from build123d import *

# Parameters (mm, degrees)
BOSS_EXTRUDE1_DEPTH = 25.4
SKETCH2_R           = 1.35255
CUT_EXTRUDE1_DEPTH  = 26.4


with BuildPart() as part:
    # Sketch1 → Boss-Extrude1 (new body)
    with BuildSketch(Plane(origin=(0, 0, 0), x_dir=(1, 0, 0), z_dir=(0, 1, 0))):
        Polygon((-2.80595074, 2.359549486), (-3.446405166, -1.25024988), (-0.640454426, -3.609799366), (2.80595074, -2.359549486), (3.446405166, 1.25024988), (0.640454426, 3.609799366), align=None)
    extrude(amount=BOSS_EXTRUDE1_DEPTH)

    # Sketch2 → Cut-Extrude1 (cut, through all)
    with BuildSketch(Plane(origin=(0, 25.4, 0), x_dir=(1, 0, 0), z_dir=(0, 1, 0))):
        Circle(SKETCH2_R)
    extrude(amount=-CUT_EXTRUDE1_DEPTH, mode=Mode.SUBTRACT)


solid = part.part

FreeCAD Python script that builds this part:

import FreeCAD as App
import Part
import Sketcher


def add_polygon(sketch, points):
    """Adds a closed chain of lines whose ends are joined by coincident constraints."""
    first, n = sketch.GeometryCount, len(points)
    for a, b in zip(points, points[1:] + points[:1]):
        sketch.addGeometry(Part.LineSegment(App.Vector(*a, 0), App.Vector(*b, 0)), False)
    for i in range(n):
        sketch.addConstraint(Sketcher.Constraint("Coincident", first + i, 2, first + (i + 1) % n, 1))

doc = App.newDocument("Part")
body = doc.addObject("PartDesign::Body", "Body")

sketch1 = body.newObject("Sketcher::SketchObject", "Sketch")
sketch1.AttachmentSupport = (doc.getObject("XZ_Plane"), [""])
sketch1.MapMode = "FlatFace"
add_polygon(sketch1, [(-2.8, -2.4), (-3.4, 1.3), (-0.6, 3.6), (2.8, 2.4), (3.4, -1.3), (0.6, -3.6)])
sketch1.addConstraint([
    Sketcher.Constraint("Symmetric", 0, 2, 3, 2, -1, 1),
    Sketcher.Constraint("Symmetric", 1, 2, 4, 2, -1, 1),
    Sketcher.Constraint("Symmetric", 2, 2, 5, 2, -1, 1),
    Sketcher.Constraint("Equal", 0, 1),
    Sketcher.Constraint("Equal", 1, 2),
    Sketcher.Constraint("DistanceY", -1, 1, 1, 2, 3.609799),
    Sketcher.Constraint("DistanceY", 0, 2, 2, 2, 1.1093),
    Sketcher.Constraint("DistanceY", 3, 2, 2, 2, 3.609799),
    Sketcher.Constraint("DistanceX", 5, 2, 2, 2, 5.611901),
])
pad1 = body.newObject("PartDesign::Pad", "Pad")
pad1.Profile = sketch1
pad1.Length = 25.4
pad1.Reversed = True

sketch2 = body.newObject("Sketcher::SketchObject", "Sketch001")
sketch2.AttachmentSupport = (doc.getObject("XZ_Plane"), [""])
sketch2.MapMode = "FlatFace"
sketch2.AttachmentOffset = App.Placement(App.Vector(0, 0, -25.4), App.Rotation())
sketch2.addGeometry(Part.Circle(App.Vector(0, 0, 0), App.Vector(0, 0, 1), 1.4), False)
sketch2.addConstraint([
    Sketcher.Constraint("Coincident", 0, 3, -1, 1),
    Sketcher.Constraint("Diameter", 0, 2.7051),
])
pocket1 = body.newObject("PartDesign::Pocket", "Pocket")
pocket1.Profile = sketch2
pocket1.Type = "ThroughAll"
pocket1.Reversed = True

doc.recompute()
